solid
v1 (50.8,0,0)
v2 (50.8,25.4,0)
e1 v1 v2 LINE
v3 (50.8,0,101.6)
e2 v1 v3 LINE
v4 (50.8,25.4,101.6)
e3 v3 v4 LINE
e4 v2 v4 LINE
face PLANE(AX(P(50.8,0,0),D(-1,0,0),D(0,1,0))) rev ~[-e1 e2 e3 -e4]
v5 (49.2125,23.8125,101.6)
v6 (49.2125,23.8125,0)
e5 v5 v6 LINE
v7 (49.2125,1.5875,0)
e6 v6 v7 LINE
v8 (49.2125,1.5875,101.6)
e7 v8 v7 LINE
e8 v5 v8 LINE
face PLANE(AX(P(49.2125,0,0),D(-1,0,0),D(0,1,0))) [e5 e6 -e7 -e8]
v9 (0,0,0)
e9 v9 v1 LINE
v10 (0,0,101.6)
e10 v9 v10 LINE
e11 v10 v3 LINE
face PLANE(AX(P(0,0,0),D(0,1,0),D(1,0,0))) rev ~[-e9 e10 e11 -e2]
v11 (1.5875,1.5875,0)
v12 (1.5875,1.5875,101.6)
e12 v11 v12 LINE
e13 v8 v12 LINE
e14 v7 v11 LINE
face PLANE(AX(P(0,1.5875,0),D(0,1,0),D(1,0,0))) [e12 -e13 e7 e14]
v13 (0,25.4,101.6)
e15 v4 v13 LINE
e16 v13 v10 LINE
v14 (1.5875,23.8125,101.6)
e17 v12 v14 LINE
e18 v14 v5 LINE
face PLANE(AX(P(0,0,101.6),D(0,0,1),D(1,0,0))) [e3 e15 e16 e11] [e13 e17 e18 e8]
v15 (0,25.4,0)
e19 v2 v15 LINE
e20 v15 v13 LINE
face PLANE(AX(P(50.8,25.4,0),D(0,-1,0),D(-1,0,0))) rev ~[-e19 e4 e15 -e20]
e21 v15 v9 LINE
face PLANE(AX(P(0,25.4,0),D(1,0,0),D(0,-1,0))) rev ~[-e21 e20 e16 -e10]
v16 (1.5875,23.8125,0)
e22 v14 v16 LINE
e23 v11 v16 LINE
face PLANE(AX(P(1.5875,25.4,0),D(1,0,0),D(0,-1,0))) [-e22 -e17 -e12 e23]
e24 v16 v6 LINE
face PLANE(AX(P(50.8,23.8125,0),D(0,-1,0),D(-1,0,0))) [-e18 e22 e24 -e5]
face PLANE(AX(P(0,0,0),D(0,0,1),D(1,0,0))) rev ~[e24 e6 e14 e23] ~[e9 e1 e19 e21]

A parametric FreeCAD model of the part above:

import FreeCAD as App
import Part
import Sketcher

V = App.Vector
Q = App.Units.Quantity


def faces_at(feature, points):
    """Names of the faces that lie closest to the given points."""
    faces = feature.Shape.Faces
    near = lambda p: min(range(len(faces)), key=lambda i: faces[i].distToShape(Part.Vertex(*p))[0])
    return sorted({f"Face{near(p) + 1}" for p in points})

doc = App.newDocument("Part")
body = doc.addObject("PartDesign::Body", "Body")

# Sketch on XY plane
sketch1 = body.newObject("Sketcher::SketchObject", "Sketch")
sketch1.AttachmentSupport = (doc.getObject("XY_Plane"), [""])
sketch1.MapMode = "FlatFace"
sketch1.addGeometry([
    Part.LineSegment(V(0, 25.4, 0), V(0, 0, 0)),
    Part.LineSegment(V(0, 0, 0), V(50.8, 0, 0)),
    Part.LineSegment(V(50.8, 0, 0), V(50.8, 25.4, 0)),
    Part.LineSegment(V(50.8, 25.4, 0), V(0, 25.4, 0)),
], False)
sketch1.addConstraint([
    Sketcher.Constraint("Coincident", 0, 2, 1, 1),
    Sketcher.Constraint("Coincident", 1, 2, 2, 1),
    Sketcher.Constraint("Coincident", 2, 2, 3, 1),
    Sketcher.Constraint("Coincident", 3, 2, 0, 1),
    Sketcher.Constraint("Vertical", 0),
    Sketcher.Constraint("Horizontal", 1),
    Sketcher.Constraint("Vertical", 2),
    Sketcher.Constraint("Horizontal", 3),
    Sketcher.Constraint("Coincident", 0, 2, -1, 1),
    Sketcher.Constraint("DistanceX", 1, 1, 1, 2, Q("2 in")),
    Sketcher.Constraint("DistanceY", 0, 2, 0, 1, Q("1 in")),
])
pad1 = body.newObject("PartDesign::Pad", "Pad")
pad1.Profile = sketch1
pad1.Length = Q("4 in")
doc.recompute()

thickness = body.newObject("PartDesign::Thickness", "Thickness")
thickness.Base = (pad1, faces_at(pad1, [(16.933, 8.467, 0), (16.933, 8.467, 101.6)]))
thickness.Value = Q("0.0625 in")
thickness.Reversed = True
thickness.Join = "Intersection"

doc.recompute()
